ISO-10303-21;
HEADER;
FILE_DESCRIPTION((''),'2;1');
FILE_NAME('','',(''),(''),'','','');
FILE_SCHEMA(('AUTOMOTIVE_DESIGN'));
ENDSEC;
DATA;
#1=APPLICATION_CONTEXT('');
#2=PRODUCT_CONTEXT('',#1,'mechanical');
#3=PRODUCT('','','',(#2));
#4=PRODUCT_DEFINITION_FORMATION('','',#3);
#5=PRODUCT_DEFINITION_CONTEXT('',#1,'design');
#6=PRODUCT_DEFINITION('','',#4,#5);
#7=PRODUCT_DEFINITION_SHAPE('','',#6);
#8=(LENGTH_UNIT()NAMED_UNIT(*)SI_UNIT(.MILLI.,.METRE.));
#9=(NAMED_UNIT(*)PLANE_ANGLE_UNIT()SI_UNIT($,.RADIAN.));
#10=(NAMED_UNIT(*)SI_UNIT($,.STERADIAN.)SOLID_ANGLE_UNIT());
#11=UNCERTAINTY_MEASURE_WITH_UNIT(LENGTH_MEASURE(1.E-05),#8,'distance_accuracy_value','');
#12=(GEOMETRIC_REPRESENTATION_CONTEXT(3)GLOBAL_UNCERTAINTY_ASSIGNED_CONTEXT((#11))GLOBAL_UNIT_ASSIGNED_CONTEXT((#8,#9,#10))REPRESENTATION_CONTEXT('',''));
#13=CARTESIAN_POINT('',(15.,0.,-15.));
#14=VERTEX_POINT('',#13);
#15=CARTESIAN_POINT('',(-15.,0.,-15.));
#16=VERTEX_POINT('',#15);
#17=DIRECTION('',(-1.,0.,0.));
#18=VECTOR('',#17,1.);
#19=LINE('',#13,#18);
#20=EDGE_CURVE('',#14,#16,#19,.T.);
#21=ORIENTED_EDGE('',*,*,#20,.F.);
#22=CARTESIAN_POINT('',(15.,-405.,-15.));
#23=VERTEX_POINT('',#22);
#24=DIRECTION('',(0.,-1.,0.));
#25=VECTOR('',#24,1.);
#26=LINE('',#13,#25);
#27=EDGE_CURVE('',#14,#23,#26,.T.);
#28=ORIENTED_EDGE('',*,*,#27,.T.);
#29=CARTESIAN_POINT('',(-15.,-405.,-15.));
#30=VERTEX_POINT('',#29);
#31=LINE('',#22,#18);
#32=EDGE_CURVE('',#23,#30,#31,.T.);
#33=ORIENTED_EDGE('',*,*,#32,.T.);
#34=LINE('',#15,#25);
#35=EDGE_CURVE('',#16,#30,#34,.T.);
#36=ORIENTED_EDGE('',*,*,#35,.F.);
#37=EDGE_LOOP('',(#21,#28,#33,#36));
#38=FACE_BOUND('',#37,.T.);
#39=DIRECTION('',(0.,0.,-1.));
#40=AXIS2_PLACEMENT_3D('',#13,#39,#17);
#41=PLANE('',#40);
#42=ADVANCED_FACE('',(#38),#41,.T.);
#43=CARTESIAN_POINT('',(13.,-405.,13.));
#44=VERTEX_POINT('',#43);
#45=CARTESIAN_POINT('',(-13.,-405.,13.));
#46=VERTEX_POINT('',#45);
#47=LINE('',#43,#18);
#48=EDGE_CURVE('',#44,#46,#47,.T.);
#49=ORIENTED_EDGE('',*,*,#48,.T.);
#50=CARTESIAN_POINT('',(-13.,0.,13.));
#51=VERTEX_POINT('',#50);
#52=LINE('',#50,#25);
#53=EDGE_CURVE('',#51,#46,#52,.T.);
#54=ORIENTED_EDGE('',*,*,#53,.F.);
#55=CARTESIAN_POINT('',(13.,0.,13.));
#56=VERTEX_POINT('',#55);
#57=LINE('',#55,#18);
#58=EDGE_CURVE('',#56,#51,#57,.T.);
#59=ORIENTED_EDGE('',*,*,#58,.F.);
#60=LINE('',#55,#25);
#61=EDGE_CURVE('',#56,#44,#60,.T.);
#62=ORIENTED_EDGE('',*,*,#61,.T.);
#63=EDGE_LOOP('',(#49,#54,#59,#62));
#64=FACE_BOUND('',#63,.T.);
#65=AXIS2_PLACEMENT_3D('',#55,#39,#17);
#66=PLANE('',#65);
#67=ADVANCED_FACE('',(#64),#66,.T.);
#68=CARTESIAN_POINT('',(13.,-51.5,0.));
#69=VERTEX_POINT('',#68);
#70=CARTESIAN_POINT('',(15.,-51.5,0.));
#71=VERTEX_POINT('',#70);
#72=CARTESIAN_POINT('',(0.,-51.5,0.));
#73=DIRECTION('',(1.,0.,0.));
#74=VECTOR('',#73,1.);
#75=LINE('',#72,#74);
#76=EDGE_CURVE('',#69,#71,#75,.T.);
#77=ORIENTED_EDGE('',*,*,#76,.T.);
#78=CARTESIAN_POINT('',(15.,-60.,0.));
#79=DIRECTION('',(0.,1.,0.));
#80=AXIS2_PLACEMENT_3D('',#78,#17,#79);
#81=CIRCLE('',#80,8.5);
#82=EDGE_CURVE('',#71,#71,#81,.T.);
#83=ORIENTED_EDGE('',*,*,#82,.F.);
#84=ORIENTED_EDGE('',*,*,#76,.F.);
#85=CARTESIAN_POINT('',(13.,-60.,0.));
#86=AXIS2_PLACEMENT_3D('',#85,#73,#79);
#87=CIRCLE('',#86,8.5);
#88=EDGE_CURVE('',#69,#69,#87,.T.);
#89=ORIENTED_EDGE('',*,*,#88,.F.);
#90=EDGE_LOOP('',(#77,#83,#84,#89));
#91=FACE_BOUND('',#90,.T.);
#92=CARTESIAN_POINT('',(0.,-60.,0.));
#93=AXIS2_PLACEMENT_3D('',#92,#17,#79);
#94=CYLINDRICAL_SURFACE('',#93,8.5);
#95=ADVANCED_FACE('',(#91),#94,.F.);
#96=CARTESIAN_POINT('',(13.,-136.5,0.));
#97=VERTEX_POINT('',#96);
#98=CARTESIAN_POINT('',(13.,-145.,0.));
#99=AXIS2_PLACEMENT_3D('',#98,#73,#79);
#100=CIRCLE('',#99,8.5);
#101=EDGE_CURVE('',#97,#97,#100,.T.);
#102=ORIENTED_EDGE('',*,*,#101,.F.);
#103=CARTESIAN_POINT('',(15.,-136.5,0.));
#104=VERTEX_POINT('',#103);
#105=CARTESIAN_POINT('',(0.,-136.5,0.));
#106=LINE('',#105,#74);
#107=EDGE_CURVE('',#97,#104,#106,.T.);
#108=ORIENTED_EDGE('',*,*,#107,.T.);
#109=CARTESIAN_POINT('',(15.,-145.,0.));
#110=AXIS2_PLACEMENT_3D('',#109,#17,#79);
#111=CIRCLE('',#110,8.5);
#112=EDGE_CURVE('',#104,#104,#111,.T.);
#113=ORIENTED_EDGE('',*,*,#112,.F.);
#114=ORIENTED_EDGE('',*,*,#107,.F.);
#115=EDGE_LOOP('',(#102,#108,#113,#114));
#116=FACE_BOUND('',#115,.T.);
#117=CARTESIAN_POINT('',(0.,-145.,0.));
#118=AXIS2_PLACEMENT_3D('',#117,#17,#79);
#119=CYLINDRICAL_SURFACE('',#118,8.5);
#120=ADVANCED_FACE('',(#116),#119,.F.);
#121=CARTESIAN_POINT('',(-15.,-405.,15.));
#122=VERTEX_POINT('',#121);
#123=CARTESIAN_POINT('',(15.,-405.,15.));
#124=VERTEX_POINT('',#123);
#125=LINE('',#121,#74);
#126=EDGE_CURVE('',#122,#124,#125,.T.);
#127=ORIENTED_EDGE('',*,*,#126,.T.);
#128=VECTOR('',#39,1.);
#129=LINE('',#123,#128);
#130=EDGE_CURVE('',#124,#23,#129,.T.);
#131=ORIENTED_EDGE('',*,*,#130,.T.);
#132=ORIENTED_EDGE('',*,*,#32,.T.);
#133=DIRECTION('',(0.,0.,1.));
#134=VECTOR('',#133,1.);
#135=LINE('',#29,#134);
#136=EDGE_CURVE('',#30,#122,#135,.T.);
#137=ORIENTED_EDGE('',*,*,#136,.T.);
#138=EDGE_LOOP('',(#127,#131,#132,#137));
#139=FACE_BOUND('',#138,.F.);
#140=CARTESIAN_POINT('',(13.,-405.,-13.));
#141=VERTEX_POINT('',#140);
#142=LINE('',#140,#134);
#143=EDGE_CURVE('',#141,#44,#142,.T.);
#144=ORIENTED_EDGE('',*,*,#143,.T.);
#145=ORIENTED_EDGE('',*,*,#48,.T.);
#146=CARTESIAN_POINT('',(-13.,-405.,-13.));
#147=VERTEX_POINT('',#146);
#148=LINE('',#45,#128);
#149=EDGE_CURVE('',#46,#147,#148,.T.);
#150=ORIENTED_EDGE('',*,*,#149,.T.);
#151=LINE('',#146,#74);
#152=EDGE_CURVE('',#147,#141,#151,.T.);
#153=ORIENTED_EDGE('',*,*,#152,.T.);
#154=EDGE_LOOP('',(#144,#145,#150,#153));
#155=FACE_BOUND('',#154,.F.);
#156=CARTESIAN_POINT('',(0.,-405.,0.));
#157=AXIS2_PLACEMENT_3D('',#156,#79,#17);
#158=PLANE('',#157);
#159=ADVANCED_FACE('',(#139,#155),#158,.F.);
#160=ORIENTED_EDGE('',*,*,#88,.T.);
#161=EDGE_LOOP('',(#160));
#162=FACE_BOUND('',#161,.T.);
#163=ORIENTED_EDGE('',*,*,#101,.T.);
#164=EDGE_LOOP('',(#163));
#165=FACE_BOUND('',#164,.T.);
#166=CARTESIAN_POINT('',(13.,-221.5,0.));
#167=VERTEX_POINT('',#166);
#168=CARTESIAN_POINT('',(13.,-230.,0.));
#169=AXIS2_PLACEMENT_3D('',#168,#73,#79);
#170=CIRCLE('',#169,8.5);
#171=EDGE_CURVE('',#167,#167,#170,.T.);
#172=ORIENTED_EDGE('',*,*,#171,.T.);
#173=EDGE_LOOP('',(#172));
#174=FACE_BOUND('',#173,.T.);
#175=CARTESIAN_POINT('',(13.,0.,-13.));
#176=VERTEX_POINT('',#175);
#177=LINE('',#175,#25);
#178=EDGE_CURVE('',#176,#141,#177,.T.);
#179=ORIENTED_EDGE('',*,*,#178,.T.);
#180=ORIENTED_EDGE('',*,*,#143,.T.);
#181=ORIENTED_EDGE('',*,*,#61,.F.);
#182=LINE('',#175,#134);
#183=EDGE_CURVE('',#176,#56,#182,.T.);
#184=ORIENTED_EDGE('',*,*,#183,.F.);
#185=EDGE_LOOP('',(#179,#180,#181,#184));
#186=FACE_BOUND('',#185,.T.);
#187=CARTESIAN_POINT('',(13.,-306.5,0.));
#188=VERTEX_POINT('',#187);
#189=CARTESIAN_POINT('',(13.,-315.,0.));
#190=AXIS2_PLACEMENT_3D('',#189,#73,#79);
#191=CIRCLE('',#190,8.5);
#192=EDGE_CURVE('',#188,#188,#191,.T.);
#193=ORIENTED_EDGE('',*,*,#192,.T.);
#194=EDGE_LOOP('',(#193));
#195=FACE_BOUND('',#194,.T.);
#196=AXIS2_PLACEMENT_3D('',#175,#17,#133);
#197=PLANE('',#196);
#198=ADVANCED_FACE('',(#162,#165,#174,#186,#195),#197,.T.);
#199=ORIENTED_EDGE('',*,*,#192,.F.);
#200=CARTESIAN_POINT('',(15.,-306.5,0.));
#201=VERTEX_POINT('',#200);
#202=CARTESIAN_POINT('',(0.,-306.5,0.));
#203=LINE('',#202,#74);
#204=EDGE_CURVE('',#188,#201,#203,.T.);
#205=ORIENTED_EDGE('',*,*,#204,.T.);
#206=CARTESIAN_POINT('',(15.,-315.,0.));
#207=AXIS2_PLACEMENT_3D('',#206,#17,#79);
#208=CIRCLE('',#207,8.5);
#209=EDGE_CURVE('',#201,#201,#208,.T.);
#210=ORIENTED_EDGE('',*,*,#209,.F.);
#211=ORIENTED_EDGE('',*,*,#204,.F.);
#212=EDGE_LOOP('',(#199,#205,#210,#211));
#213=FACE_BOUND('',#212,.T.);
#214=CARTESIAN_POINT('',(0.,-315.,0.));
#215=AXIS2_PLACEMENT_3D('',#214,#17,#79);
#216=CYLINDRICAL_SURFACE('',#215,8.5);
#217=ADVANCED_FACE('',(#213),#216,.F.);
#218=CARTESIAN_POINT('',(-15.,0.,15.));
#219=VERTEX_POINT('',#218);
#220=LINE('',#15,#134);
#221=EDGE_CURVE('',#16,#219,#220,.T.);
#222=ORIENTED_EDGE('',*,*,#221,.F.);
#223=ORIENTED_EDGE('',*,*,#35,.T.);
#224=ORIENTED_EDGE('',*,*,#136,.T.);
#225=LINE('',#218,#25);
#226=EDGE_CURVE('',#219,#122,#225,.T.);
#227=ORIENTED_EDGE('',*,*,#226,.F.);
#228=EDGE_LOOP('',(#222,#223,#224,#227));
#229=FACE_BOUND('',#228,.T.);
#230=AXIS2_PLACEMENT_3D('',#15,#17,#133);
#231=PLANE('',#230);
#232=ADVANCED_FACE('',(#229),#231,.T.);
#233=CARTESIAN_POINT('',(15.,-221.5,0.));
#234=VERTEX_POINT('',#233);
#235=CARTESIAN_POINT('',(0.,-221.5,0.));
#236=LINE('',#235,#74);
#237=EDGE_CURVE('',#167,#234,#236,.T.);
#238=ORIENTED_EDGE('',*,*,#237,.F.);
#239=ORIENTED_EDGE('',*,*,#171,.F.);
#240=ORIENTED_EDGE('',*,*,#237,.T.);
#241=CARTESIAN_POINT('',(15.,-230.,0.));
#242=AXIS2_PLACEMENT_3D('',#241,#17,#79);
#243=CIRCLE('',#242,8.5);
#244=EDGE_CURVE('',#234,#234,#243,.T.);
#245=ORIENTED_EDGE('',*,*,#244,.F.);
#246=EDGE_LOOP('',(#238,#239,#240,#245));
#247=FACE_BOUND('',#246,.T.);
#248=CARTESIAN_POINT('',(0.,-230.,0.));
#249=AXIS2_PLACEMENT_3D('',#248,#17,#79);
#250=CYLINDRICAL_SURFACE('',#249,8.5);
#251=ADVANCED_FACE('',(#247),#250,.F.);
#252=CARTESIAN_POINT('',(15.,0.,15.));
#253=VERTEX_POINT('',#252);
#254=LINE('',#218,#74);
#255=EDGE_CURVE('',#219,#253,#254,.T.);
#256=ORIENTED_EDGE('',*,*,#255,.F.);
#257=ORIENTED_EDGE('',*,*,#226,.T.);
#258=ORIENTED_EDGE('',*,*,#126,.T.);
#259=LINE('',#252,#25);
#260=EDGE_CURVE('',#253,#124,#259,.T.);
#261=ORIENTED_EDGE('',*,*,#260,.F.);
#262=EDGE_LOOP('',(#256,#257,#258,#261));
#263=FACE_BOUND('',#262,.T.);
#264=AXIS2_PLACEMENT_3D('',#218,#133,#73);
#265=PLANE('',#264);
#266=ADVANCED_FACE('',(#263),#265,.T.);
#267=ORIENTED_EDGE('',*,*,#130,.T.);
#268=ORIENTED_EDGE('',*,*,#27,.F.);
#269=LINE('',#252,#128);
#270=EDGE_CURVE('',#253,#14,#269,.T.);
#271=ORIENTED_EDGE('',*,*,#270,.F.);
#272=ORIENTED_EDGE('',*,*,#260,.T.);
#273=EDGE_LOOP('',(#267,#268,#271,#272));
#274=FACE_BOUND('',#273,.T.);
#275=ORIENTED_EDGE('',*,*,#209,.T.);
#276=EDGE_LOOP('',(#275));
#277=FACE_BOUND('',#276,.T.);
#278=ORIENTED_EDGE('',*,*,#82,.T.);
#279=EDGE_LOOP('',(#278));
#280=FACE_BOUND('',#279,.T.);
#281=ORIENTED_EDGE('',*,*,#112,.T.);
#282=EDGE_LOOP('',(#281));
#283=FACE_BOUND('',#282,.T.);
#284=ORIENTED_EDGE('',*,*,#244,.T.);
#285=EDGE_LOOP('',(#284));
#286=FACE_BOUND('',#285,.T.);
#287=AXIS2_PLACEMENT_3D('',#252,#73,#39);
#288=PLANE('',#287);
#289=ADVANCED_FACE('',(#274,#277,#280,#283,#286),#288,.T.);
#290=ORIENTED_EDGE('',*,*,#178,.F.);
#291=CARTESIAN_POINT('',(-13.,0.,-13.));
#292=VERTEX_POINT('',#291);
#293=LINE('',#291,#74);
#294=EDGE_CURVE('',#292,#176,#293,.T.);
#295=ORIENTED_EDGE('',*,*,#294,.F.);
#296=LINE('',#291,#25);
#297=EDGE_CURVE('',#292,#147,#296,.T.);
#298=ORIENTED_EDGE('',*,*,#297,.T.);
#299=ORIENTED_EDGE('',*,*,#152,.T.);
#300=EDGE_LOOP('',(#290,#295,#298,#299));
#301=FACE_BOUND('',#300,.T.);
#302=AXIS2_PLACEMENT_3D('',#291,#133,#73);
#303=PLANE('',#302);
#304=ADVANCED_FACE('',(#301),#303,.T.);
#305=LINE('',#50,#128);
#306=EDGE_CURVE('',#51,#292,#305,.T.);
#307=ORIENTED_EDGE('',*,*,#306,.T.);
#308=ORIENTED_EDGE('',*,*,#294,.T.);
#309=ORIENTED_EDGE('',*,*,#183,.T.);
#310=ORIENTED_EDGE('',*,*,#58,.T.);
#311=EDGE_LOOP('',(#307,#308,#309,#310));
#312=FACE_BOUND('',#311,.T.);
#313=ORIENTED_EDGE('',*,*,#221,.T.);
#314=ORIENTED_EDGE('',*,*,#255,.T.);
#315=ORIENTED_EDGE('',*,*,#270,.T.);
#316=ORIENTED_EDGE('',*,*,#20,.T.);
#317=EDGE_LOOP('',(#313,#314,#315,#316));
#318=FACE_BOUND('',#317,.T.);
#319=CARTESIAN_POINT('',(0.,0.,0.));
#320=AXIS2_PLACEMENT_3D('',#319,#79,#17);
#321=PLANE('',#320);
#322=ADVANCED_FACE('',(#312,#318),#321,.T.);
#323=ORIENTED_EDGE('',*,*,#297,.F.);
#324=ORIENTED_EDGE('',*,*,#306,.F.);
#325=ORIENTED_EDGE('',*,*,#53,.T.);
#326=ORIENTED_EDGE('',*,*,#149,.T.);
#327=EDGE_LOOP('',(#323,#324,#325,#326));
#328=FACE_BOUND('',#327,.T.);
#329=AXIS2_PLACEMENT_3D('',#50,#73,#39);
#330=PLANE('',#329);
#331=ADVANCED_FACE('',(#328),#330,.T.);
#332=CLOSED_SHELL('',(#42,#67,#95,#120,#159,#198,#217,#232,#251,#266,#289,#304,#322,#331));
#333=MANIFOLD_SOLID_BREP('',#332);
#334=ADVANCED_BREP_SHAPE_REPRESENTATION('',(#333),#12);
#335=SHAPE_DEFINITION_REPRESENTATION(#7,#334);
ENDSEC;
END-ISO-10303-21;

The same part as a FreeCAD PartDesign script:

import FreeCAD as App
import Part
import Sketcher
Q = App.Units.Quantity


def add_polygon(sketch, points):
    """Adds a closed chain of lines whose ends are joined by coincident constraints."""
    first, n = sketch.GeometryCount, len(points)
    for a, b in zip(points, points[1:] + points[:1]):
        sketch.addGeometry(Part.LineSegment(App.Vector(*a, 0), App.Vector(*b, 0)), False)
    for i in range(n):
        sketch.addConstraint(Sketcher.Constraint("Coincident", first + i, 2, first + (i + 1) % n, 1))

doc = App.newDocument("Part")
body = doc.addObject("PartDesign::Body", "Body")

# Sketch on XZ plane
sketch1 = body.newObject("Sketcher::SketchObject", "Sketch")
sketch1.AttachmentSupport = (doc.getObject("XZ_Plane"), [""])
sketch1.MapMode = "FlatFace"
add_polygon(sketch1, [(-15, -15), (-15, 15), (15, 15), (15, -15)])  # lines 0-3
add_polygon(sketch1, [(13, -13), (13, 13), (-13, 13), (-13, -13)])  # lines 4-7
sketch1.addConstraint(Sketcher.Constraint("Vertical", 0))
sketch1.addConstraint(Sketcher.Constraint("Horizontal", 1))
sketch1.addConstraint(Sketcher.Constraint("Vertical", 2))
sketch1.addConstraint(Sketcher.Constraint("Horizontal", 3))
sketch1.addConstraint(Sketcher.Constraint("Vertical", 4))
sketch1.addConstraint(Sketcher.Constraint("Horizontal", 5))
sketch1.addConstraint(Sketcher.Constraint("Vertical", 6))
sketch1.addConstraint(Sketcher.Constraint("Horizontal", 7))
sketch1.addConstraint(Sketcher.Constraint("Symmetric", 0, 2, 2, 2, -1, 1))
sketch1.addConstraint(Sketcher.Constraint("Symmetric", 4, 2, 6, 2, -1, 1))
sketch1.addConstraint(Sketcher.Constraint("Equal", 3, 0))
sketch1.addConstraint(Sketcher.Constraint("Equal", 7, 4))
sketch1.addConstraint(Sketcher.Constraint("DistanceX", 1, 1, 1, 2, Q("30 mm")))
sketch1.addConstraint(Sketcher.Constraint("DistanceX", 4, 2, 1, 2, Q("2 mm")))
pad1 = body.newObject("PartDesign::Pad", "Pad")
pad1.Profile = sketch1
pad1.Length = 405

# Sketch on YZ plane
sketch2 = body.newObject("Sketcher::SketchObject", "Sketch001")
sketch2.AttachmentSupport = (doc.getObject("YZ_Plane"), [""])
sketch2.MapMode = "FlatFace"
sketch2.addGeometry(Part.Circle(App.Vector(-60, 0, 0), App.Vector(0, 0, 1), 8), False)
sketch2.addConstraint(Sketcher.Constraint("PointOnObject", 0, 3, -1))
sketch2.addConstraint(Sketcher.Constraint("Diameter", 0, Q("17 mm")))
sketch2.addConstraint(Sketcher.Constraint("DistanceX", 0, 3, -1, 1, Q("60 mm")))
pocket1 = body.newObject("PartDesign::Pocket", "Pocket")
pocket1.Profile = sketch2
pocket1.Type = "ThroughAll"
pocket1.Reversed = True
doc.recompute()

linearpattern = body.newObject("PartDesign::LinearPattern", "LinearPattern")
linearpattern.Originals = [pocket1]
linearpattern.Direction = (doc.getObject("Y_Axis"), [""])
linearpattern.Mode = "offset"
linearpattern.Offset = 85
linearpattern.Occurrences = 4
linearpattern.Reversed = True
body.Tip = linearpattern

doc.recompute()
